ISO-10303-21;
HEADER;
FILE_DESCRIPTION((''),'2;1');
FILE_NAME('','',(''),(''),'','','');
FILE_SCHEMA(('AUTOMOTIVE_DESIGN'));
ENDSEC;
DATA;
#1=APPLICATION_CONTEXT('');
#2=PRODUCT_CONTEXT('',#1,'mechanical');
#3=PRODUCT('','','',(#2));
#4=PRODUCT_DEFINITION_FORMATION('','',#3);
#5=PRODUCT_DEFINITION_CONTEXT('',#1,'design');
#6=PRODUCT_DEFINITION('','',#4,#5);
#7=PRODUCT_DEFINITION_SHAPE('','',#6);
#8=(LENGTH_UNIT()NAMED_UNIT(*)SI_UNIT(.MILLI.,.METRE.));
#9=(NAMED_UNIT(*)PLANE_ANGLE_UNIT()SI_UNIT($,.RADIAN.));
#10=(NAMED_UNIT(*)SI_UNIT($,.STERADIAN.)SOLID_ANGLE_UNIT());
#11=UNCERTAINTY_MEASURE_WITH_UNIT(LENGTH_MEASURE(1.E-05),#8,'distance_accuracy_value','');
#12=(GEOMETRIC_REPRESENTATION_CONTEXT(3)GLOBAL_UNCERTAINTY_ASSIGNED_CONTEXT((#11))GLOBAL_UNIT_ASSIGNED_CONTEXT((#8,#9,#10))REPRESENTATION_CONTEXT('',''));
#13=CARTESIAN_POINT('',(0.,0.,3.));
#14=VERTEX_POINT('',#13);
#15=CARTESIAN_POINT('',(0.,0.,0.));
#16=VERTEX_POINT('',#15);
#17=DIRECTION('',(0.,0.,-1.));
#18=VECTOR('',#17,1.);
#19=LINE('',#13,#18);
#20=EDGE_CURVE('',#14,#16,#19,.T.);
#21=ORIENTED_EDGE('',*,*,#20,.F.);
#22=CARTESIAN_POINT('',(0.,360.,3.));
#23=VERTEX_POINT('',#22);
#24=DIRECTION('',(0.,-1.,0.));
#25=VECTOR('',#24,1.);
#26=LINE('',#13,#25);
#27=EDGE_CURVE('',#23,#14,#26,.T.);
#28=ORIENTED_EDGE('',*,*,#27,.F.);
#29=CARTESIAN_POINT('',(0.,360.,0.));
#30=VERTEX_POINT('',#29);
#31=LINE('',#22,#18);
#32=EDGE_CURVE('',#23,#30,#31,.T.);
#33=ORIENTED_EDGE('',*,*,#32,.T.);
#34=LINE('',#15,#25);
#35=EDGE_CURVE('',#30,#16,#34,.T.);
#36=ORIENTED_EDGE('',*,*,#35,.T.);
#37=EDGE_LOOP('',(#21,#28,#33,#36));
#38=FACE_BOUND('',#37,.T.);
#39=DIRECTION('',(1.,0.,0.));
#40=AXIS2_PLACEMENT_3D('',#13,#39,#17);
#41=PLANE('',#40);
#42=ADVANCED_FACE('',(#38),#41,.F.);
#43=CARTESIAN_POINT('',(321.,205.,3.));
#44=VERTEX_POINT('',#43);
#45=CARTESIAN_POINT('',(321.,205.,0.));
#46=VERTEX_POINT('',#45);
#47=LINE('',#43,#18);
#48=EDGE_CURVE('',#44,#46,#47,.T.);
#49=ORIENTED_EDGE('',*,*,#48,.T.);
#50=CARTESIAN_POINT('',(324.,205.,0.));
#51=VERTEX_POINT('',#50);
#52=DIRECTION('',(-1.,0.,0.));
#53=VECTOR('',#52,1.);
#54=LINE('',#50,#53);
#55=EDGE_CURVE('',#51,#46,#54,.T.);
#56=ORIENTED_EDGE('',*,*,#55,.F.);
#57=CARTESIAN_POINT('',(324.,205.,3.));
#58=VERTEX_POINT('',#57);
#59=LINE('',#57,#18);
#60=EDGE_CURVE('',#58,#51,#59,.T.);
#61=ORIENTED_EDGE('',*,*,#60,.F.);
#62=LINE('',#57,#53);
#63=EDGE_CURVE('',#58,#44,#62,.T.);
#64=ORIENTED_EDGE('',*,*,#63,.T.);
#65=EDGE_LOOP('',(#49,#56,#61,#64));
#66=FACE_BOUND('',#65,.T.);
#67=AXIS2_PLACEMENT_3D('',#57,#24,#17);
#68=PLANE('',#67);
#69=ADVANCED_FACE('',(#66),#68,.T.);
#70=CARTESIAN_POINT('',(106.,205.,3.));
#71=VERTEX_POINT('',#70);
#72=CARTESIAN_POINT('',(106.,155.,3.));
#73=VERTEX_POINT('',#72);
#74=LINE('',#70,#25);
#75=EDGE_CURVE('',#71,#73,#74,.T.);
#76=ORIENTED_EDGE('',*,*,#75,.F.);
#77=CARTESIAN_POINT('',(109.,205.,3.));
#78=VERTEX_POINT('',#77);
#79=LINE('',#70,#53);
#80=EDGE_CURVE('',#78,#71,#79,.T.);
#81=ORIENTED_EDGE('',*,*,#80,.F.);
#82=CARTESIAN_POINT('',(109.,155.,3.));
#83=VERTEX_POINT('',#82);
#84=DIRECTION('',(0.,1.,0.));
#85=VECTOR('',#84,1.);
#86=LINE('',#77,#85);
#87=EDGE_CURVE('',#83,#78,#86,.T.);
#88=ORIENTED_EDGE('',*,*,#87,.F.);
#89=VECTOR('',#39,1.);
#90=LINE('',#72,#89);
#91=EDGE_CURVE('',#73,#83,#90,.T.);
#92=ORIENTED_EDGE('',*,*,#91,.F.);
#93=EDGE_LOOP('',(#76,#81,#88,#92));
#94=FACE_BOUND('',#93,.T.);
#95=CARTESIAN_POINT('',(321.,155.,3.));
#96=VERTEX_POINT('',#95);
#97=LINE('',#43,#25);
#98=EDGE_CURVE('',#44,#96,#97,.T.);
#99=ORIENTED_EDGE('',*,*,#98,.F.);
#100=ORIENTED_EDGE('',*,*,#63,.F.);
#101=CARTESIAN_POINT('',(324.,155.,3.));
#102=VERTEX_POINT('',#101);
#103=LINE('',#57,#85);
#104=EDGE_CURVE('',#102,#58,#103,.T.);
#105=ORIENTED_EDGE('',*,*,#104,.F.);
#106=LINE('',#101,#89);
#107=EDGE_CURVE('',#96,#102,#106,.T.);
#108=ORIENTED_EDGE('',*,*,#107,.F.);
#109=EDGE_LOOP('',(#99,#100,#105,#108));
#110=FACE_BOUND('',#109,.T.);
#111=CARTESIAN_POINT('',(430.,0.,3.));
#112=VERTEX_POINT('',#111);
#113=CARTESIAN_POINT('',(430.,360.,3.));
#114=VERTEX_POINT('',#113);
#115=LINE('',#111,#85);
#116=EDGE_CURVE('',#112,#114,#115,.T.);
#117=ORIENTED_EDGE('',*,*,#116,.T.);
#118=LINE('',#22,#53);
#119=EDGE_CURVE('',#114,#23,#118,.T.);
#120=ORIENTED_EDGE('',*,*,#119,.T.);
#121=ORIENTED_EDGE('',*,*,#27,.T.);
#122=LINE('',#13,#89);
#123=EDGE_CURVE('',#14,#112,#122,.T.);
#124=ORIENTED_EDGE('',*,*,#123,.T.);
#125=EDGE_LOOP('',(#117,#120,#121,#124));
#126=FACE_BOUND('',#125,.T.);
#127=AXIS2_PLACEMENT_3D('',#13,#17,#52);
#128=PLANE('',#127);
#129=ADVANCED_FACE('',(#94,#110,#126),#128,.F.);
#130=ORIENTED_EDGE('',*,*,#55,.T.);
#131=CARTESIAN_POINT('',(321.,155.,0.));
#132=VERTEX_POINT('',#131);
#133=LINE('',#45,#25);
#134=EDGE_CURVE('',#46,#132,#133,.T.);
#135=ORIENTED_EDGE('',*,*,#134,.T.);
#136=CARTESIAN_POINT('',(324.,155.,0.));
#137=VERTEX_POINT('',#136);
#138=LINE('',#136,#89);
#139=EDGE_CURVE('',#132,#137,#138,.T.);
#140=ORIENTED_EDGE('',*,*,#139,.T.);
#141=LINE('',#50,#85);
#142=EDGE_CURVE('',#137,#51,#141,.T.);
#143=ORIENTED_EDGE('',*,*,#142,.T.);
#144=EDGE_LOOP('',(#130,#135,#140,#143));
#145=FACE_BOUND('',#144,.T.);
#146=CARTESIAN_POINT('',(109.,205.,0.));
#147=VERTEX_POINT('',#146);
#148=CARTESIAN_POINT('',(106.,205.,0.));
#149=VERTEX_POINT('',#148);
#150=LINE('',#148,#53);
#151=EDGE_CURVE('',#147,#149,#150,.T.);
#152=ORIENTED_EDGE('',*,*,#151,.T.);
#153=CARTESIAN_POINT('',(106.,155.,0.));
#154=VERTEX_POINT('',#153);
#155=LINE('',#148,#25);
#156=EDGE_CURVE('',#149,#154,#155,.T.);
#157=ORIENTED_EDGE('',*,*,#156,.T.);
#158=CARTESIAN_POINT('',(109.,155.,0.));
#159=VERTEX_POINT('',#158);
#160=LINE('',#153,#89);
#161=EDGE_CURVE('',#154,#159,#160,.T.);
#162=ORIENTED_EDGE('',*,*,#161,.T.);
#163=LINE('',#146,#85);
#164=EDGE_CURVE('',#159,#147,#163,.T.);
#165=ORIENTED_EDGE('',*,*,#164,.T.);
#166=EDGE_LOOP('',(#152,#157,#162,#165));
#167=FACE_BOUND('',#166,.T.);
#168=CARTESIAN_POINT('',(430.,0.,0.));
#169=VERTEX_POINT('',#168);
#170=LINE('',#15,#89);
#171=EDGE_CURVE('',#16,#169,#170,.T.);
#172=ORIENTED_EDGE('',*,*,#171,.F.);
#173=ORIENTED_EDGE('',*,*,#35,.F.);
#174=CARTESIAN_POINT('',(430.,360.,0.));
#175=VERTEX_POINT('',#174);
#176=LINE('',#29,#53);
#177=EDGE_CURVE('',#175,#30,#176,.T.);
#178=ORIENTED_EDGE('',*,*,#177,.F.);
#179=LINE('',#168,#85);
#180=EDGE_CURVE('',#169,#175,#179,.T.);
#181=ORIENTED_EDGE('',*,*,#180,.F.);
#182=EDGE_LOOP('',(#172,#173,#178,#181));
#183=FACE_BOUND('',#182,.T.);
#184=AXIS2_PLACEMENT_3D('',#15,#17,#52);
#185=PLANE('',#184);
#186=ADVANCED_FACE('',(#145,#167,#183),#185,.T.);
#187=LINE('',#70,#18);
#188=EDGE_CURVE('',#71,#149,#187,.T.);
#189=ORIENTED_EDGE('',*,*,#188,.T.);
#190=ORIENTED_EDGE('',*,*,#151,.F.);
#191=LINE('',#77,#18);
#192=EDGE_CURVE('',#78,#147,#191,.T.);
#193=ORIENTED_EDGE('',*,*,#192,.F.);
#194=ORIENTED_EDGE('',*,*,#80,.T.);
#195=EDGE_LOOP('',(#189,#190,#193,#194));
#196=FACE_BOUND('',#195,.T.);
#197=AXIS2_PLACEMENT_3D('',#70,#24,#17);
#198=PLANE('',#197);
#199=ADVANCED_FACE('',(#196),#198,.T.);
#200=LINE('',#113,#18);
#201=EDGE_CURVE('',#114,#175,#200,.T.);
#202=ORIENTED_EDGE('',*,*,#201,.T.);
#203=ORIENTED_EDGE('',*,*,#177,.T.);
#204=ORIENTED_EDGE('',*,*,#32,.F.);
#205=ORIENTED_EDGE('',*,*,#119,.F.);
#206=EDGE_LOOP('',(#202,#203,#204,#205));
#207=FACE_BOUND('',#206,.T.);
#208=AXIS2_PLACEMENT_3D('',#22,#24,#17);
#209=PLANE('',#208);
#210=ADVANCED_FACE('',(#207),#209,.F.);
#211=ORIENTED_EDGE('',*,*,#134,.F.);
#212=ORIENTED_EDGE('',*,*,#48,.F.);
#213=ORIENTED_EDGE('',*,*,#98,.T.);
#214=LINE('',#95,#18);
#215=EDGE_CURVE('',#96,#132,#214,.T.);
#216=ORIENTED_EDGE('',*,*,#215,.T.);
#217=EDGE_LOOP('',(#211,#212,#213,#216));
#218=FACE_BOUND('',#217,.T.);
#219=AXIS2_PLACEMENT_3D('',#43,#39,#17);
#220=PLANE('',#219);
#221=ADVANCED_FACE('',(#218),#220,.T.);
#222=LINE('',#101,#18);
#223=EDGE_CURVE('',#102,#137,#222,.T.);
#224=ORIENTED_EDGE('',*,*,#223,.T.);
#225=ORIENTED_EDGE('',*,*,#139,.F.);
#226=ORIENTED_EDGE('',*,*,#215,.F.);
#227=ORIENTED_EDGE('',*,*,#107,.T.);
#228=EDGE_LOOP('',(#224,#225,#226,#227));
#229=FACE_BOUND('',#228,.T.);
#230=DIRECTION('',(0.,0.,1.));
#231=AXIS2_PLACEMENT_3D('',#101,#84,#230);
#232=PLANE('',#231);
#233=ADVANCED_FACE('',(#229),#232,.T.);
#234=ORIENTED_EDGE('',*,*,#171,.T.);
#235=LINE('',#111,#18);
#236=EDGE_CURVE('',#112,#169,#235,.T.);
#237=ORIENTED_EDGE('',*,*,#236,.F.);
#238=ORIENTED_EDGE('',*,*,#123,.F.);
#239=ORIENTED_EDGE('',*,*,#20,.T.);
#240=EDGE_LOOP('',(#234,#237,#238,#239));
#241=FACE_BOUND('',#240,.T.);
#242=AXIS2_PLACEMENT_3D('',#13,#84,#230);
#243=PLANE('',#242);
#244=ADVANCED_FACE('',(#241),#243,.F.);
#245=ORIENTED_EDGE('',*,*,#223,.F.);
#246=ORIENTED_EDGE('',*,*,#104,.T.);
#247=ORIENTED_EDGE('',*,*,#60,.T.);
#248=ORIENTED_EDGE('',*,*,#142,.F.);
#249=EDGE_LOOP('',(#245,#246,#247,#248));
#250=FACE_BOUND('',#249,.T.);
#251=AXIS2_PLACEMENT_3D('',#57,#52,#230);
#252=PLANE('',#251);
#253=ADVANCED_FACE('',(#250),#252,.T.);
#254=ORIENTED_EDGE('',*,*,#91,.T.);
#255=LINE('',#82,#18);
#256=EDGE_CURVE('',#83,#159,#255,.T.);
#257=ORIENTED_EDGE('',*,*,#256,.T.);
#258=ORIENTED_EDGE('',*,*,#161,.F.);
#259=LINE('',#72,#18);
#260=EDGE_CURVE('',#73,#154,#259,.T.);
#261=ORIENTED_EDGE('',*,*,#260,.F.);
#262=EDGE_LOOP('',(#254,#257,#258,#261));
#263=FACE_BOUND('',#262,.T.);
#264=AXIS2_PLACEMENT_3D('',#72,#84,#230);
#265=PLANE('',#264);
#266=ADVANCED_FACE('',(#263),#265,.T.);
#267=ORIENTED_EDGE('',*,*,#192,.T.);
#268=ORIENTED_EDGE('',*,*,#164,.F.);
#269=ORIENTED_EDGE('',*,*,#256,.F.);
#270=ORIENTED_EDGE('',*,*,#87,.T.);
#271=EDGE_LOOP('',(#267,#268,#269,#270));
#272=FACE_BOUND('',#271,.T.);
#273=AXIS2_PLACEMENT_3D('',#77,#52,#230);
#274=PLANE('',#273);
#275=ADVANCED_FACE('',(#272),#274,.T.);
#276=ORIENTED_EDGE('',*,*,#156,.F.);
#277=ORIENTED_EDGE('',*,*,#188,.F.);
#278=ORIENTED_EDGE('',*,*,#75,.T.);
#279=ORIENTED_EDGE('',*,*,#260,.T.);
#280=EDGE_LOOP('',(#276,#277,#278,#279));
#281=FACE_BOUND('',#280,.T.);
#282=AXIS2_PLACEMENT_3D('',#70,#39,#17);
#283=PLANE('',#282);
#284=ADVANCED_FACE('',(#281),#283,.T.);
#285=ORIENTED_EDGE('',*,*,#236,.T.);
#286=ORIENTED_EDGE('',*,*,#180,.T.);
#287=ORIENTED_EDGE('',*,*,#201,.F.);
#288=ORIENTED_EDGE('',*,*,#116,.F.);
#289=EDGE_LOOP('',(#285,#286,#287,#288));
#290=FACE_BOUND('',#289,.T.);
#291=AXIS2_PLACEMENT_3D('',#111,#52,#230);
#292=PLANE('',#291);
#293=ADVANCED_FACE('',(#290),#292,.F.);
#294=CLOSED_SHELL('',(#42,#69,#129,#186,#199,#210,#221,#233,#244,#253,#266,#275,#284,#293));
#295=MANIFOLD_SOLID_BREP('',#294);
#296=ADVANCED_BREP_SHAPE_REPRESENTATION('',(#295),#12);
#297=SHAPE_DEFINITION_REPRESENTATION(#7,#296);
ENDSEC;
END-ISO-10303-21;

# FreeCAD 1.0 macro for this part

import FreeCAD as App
import Part
import Sketcher

V = App.Vector

doc = App.newDocument("Part")
body = doc.addObject("PartDesign::Body", "Body")

# Sketch on XY plane
sketch1 = doc.addObject("Sketcher::SketchObject", "Sketch")
body.addObject(sketch1)
sketch1.AttachmentSupport = (doc.XY_Plane, [""])
sketch1.MapMode = "FlatFace"
sketch1.addGeometry(Part.LineSegment(V(0, 360, 0), V(0, 0, 0)), False)
sketch1.addGeometry(Part.LineSegment(V(0, 0, 0), V(430, 0, 0)), False)
sketch1.addGeometry(Part.LineSegment(V(430, 0, 0), V(430, 360, 0)), False)
sketch1.addGeometry(Part.LineSegment(V(430, 360, 0), V(0, 360, 0)), False)
sketch1.addGeometry(Part.LineSegment(V(109, 155, 0), V(106, 155, 0)), False)
sketch1.addGeometry(Part.LineSegment(V(106, 155, 0), V(106, 205, 0)), False)
sketch1.addGeometry(Part.LineSegment(V(106, 205, 0), V(109, 205, 0)), False)
sketch1.addGeometry(Part.LineSegment(V(109, 205, 0), V(109, 155, 0)), False)
sketch1.addGeometry(Part.LineSegment(V(324, 155, 0), V(321, 155, 0)), False)
sketch1.addGeometry(Part.LineSegment(V(321, 155, 0), V(321, 205, 0)), False)
sketch1.addGeometry(Part.LineSegment(V(321, 205, 0), V(324, 205, 0)), False)
sketch1.addGeometry(Part.LineSegment(V(324, 205, 0), V(324, 155, 0)), False)
sketch1.addConstraint(Sketcher.Constraint("Coincident", 0, 2, 1, 1))
sketch1.addConstraint(Sketcher.Constraint("Coincident", 1, 2, 2, 1))
sketch1.addConstraint(Sketcher.Constraint("Coincident", 2, 2, 3, 1))
sketch1.addConstraint(Sketcher.Constraint("Coincident", 3, 2, 0, 1))
sketch1.addConstraint(Sketcher.Constraint("Coincident", 4, 2, 5, 1))
sketch1.addConstraint(Sketcher.Constraint("Coincident", 5, 2, 6, 1))
sketch1.addConstraint(Sketcher.Constraint("Coincident", 6, 2, 7, 1))
sketch1.addConstraint(Sketcher.Constraint("Coincident", 7, 2, 4, 1))
sketch1.addConstraint(Sketcher.Constraint("Coincident", 8, 2, 9, 1))
sketch1.addConstraint(Sketcher.Constraint("Coincident", 9, 2, 10, 1))
sketch1.addConstraint(Sketcher.Constraint("Coincident", 10, 2, 11, 1))
sketch1.addConstraint(Sketcher.Constraint("Coincident", 11, 2, 8, 1))
sketch1.addConstraint(Sketcher.Constraint("Vertical", 0))
sketch1.addConstraint(Sketcher.Constraint("Horizontal", 1))
sketch1.addConstraint(Sketcher.Constraint("Vertical", 2))
sketch1.addConstraint(Sketcher.Constraint("Horizontal", 3))
sketch1.addConstraint(Sketcher.Constraint("Horizontal", 4))
sketch1.addConstraint(Sketcher.Constraint("Vertical", 5))
sketch1.addConstraint(Sketcher.Constraint("Horizontal", 6))
sketch1.addConstraint(Sketcher.Constraint("Vertical", 7))
sketch1.addConstraint(Sketcher.Constraint("Horizontal", 8))
sketch1.addConstraint(Sketcher.Constraint("Vertical", 9))
sketch1.addConstraint(Sketcher.Constraint("Horizontal", 10))
sketch1.addConstraint(Sketcher.Constraint("Vertical", 11))
sketch1.addConstraint(Sketcher.Constraint("Coincident", 0, 2, -1, 1))
sketch1.addConstraint(Sketcher.Constraint("Horizontal", 7, 2, 8, 2))
sketch1.addConstraint(Sketcher.Constraint("Horizontal", 6, 2, 9, 2))
sketch1.addConstraint(Sketcher.Constraint("Equal", 6, 8))
sketch1.addConstraint(Sketcher.Constraint("DistanceX", 1, 1, 1, 2, 430.0))
sketch1.addConstraint(Sketcher.Constraint("DistanceX", 4, 2, 4, 1, 3.0))
sketch1.addConstraint(Sketcher.Constraint("DistanceY", 0, 2, 0, 1, 360.0))
sketch1.addConstraint(Sketcher.Constraint("DistanceY", 5, 1, 5, 2, 50.0))
sketch1.addConstraint(Sketcher.Constraint("DistanceX", -1, 1, 4, 2, 106.0))
sketch1.addConstraint(Sketcher.Constraint("DistanceY", -1, 1, 4, 2, 155.0))
sketch1.addConstraint(Sketcher.Constraint("DistanceX", -1, 1, 8, 2, 321.0))
pad1 = doc.addObject("PartDesign::Pad", "Pad")
body.addObject(pad1)
pad1.Profile = sketch1
pad1.Length = 3

doc.recompute()
